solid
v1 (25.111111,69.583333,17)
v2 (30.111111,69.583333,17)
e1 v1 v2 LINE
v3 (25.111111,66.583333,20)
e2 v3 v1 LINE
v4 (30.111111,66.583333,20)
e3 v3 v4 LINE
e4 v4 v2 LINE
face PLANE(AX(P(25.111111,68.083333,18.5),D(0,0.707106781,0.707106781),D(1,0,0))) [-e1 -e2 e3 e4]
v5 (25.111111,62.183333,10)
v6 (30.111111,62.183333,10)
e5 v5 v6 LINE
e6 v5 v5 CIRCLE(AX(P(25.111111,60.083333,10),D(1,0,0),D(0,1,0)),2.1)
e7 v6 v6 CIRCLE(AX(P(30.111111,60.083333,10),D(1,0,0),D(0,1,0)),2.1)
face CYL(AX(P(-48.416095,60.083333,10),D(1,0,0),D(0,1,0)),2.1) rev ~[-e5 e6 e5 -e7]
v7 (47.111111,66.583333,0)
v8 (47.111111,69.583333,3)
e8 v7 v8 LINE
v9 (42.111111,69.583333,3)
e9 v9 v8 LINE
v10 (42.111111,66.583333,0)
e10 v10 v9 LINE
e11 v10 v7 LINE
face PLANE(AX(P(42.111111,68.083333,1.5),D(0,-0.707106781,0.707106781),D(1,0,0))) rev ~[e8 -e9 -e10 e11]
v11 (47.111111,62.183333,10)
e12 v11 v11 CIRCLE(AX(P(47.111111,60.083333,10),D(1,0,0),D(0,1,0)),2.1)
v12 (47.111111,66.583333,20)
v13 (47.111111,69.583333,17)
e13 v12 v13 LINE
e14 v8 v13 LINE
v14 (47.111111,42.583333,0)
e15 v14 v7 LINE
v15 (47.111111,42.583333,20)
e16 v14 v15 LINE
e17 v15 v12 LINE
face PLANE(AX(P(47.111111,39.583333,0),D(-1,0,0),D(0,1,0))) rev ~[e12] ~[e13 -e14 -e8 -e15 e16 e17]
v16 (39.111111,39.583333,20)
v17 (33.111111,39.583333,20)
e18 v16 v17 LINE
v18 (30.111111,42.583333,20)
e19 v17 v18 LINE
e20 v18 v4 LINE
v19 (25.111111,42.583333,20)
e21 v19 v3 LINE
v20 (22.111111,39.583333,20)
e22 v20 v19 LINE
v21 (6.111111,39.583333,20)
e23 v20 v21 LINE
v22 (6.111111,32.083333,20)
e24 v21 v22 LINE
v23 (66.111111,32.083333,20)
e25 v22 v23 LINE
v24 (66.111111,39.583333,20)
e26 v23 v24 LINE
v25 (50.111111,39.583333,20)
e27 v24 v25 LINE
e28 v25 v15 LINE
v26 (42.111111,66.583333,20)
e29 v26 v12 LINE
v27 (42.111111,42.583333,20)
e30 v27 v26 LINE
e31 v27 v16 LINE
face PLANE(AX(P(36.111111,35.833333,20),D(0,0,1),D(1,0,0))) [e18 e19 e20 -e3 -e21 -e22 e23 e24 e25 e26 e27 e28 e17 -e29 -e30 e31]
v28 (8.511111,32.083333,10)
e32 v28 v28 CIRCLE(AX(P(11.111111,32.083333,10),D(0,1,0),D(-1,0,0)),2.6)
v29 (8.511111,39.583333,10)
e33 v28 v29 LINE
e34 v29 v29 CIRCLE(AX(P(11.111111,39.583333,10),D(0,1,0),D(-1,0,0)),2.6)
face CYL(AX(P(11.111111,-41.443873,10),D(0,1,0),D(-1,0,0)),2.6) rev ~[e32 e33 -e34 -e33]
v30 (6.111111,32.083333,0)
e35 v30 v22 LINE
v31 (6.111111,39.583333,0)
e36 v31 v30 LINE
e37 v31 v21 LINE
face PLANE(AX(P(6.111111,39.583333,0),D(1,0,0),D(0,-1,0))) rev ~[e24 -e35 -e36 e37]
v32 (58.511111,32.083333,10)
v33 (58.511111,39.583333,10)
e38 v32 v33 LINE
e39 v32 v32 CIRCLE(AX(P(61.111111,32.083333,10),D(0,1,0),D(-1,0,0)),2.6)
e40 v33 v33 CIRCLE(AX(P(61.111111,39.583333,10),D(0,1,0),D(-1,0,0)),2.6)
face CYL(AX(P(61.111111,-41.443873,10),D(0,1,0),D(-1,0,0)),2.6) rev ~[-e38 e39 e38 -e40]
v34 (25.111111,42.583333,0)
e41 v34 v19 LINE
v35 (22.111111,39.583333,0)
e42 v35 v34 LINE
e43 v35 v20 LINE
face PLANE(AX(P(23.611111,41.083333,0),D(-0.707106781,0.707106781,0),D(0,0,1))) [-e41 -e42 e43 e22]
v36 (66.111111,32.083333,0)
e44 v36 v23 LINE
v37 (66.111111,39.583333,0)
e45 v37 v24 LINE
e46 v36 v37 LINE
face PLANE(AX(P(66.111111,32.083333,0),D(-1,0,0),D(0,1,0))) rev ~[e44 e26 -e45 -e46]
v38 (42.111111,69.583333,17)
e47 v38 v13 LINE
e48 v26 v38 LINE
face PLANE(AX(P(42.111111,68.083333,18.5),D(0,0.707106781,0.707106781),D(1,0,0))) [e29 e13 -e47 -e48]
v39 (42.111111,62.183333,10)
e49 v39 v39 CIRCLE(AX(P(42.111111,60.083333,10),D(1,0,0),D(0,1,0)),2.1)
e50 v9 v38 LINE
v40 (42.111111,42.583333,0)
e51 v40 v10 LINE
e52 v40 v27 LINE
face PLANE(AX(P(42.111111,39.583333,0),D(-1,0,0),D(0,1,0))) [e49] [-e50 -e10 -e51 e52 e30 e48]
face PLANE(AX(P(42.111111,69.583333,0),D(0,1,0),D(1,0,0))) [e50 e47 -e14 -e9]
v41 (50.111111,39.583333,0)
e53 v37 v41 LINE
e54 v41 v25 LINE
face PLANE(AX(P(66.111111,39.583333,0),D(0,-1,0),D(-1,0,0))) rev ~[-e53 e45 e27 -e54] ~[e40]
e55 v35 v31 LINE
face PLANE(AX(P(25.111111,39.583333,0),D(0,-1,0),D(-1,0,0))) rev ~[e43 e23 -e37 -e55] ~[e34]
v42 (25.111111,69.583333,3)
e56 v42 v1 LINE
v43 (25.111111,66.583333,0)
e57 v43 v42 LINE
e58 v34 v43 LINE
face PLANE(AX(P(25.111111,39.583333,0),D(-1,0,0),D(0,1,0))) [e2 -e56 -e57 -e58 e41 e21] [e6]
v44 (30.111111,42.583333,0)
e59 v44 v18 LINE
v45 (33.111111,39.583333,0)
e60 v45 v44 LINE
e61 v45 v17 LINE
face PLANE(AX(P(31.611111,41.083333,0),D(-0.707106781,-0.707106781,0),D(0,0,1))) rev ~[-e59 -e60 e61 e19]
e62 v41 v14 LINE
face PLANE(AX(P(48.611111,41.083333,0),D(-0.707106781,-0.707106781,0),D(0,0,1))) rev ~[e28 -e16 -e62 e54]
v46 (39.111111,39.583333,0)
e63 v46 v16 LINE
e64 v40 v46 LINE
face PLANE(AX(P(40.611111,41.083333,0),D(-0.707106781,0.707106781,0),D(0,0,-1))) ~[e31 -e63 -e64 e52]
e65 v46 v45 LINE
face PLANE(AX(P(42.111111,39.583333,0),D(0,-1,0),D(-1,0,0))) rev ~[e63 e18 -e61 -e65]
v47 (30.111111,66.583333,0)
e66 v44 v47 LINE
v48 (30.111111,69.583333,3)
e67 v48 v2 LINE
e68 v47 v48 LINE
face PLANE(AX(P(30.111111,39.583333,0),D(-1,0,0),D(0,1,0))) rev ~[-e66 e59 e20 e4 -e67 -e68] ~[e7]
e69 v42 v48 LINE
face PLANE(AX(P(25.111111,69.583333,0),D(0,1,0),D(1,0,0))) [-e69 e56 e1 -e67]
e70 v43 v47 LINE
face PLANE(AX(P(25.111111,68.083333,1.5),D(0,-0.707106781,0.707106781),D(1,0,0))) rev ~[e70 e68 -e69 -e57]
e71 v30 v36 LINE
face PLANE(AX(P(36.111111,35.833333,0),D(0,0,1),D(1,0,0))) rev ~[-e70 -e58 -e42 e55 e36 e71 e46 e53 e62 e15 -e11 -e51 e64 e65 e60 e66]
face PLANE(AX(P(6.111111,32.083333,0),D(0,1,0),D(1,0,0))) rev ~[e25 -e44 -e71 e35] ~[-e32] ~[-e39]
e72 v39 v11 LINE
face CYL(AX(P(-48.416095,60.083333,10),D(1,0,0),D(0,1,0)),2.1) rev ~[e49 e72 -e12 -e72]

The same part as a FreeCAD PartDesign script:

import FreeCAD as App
import Part
import Sketcher
from FreeCAD import Vector
Q = App.Units.Quantity


def edges_at(feature, points):
    """Names of the edges that pass closest to the given points."""
    edges = feature.Shape.Edges
    near = lambda p: min(range(len(edges)), key=lambda i: edges[i].distToShape(Part.Vertex(*p))[0])
    return sorted({f"Edge{near(p) + 1}" for p in points})

doc = App.newDocument("Part")
body = doc.addObject("PartDesign::Body", "Body")

# Sketch on XY plane
sketch1 = body.newObject("Sketcher::SketchObject", "Sketch")
sketch1.AttachmentSupport = (doc.getObject("XY_Plane"), [""])
sketch1.MapMode = "FlatFace"
sketch1.addGeometry(Part.LineSegment(Vector(6.111111, 39.583333, 0), Vector(6.111111, 32.083333, 0)), False)
sketch1.addGeometry(Part.LineSegment(Vector(6.111111, 32.083333, 0), Vector(66.111111, 32.083333, 0)), False)
sketch1.addGeometry(Part.LineSegment(Vector(66.111111, 32.083333, 0), Vector(66.111111, 39.583333, 0)), False)
sketch1.addGeometry(Part.LineSegment(Vector(66.111111, 39.583333, 0), Vector(47.111111, 39.583333, 0)), False)
sketch1.addGeometry(Part.LineSegment(Vector(47.111111, 39.583333, 0), Vector(47.111111, 69.583333, 0)), False)
sketch1.addGeometry(Part.LineSegment(Vector(47.111111, 69.583333, 0), Vector(42.111111, 69.583333, 0)), False)
sketch1.addGeometry(Part.LineSegment(Vector(42.111111, 69.583333, 0), Vector(42.111111, 39.583333, 0)), False)
sketch1.addGeometry(Part.LineSegment(Vector(42.111111, 39.583333, 0), Vector(30.111111, 39.583333, 0)), False)
sketch1.addGeometry(Part.LineSegment(Vector(30.111111, 39.583333, 0), Vector(30.111111, 69.583333, 0)), False)
sketch1.addGeometry(Part.LineSegment(Vector(30.111111, 69.583333, 0), Vector(25.111111, 69.583333, 0)), False)
sketch1.addGeometry(Part.LineSegment(Vector(25.111111, 69.583333, 0), Vector(25.111111, 39.583333, 0)), False)
sketch1.addGeometry(Part.LineSegment(Vector(25.111111, 39.583333, 0), Vector(6.111111, 39.583333, 0)), False)
sketch1.addConstraint(Sketcher.Constraint("Coincident", 0, 2, 1, 1))
sketch1.addConstraint(Sketcher.Constraint("Coincident", 1, 2, 2, 1))
sketch1.addConstraint(Sketcher.Constraint("Coincident", 2, 2, 3, 1))
sketch1.addConstraint(Sketcher.Constraint("Coincident", 3, 2, 4, 1))
sketch1.addConstraint(Sketcher.Constraint("Coincident", 4, 2, 5, 1))
sketch1.addConstraint(Sketcher.Constraint("Coincident", 5, 2, 6, 1))
sketch1.addConstraint(Sketcher.Constraint("Coincident", 6, 2, 7, 1))
sketch1.addConstraint(Sketcher.Constraint("Coincident", 7, 2, 8, 1))
sketch1.addConstraint(Sketcher.Constraint("Coincident", 8, 2, 9, 1))
sketch1.addConstraint(Sketcher.Constraint("Coincident", 9, 2, 10, 1))
sketch1.addConstraint(Sketcher.Constraint("Coincident", 10, 2, 11, 1))
sketch1.addConstraint(Sketcher.Constraint("Coincident", 11, 2, 0, 1))
sketch1.addConstraint(Sketcher.Constraint("Vertical", 0))
sketch1.addConstraint(Sketcher.Constraint("Horizontal", 1))
sketch1.addConstraint(Sketcher.Constraint("Vertical", 2))
sketch1.addConstraint(Sketcher.Constraint("Horizontal", 3))
sketch1.addConstraint(Sketcher.Constraint("Vertical", 4))
sketch1.addConstraint(Sketcher.Constraint("Horizontal", 5))
sketch1.addConstraint(Sketcher.Constraint("Vertical", 6))
sketch1.addConstraint(Sketcher.Constraint("Horizontal", 7))
sketch1.addConstraint(Sketcher.Constraint("Vertical", 8))
sketch1.addConstraint(Sketcher.Constraint("Horizontal", 9))
sketch1.addConstraint(Sketcher.Constraint("Vertical", 10))
sketch1.addConstraint(Sketcher.Constraint("Horizontal", 11))
sketch1.addConstraint(Sketcher.Constraint("Horizontal", 3, 2, 6, 2))
sketch1.addConstraint(Sketcher.Constraint("Horizontal", 5, 2, 8, 2))
sketch1.addConstraint(Sketcher.Constraint("Horizontal", 7, 2, 10, 2))
sketch1.addConstraint(Sketcher.Constraint("Equal", 5, 9))
sketch1.addConstraint(Sketcher.Constraint("Equal", 3, 11))
sketch1.addConstraint(Sketcher.Constraint("DistanceX", 1, 1, 1, 2, Q("60 mm")))
sketch1.addConstraint(Sketcher.Constraint("DistanceX", 3, 2, 3, 1, Q("19 mm")))
sketch1.addConstraint(Sketcher.Constraint("DistanceX", 5, 2, 5, 1, Q("5 mm")))
sketch1.addConstraint(Sketcher.Constraint("DistanceY", 4, 1, 4, 2, Q("30 mm")))
sketch1.addConstraint(Sketcher.Constraint("DistanceY", 0, 2, 0, 1, Q("7.5 mm")))
sketch1.addConstraint(Sketcher.Constraint("DistanceX", -1, 1, 0, 2, Q("6.111111 mm")))
sketch1.addConstraint(Sketcher.Constraint("DistanceY", -1, 1, 0, 2, Q("32.083333 mm")))
pad1 = body.newObject("PartDesign::Pad", "Pad")
pad1.Profile = sketch1
pad1.Length = 20

# Sketch on XZ plane
sketch2 = body.newObject("Sketcher::SketchObject", "Sketch001")
sketch2.AttachmentSupport = (doc.getObject("XZ_Plane"), [""])
sketch2.MapMode = "FlatFace"
sketch2.AttachmentOffset = App.Placement(Vector(0, 0, -32.083333), App.Rotation())
sketch2.addGeometry(Part.Circle(Vector(11.111111, 10, 0), Vector(0, 0, 1), 2.6), False)
sketch2.addGeometry(Part.Circle(Vector(61.111111, 10, 0), Vector(0, 0, 1), 2.6), False)
sketch2.addConstraint(Sketcher.Constraint("Equal", 0, 1))
sketch2.addConstraint(Sketcher.Constraint("Horizontal", 0, 3, 1, 3))
sketch2.addConstraint(Sketcher.Constraint("Diameter", 0, Q("5.2 mm")))
sketch2.addConstraint(Sketcher.Constraint("DistanceY", -1, 1, 0, 3, Q("10 mm")))
sketch2.addConstraint(Sketcher.Constraint("DistanceX", 0, 3, 1, 3, Q("50 mm")))
sketch2.addConstraint(Sketcher.Constraint("DistanceX", -1, 1, 0, 3, Q("11.111111 mm")))
doc.recompute()
hole = body.newObject("PartDesign::Hole", "Hole")
hole.Profile = sketch2
hole.ThreadType = "None"
hole.Diameter = 5.2
hole.DepthType = "ThroughAll"

# Sketch on YZ plane
sketch3 = body.newObject("Sketcher::SketchObject", "Sketch002")
sketch3.AttachmentSupport = (doc.getObject("YZ_Plane"), [""])
sketch3.MapMode = "FlatFace"
sketch3.AttachmentOffset = App.Placement(Vector(0, 0, 25.111111), App.Rotation())
sketch3.addGeometry(Part.Circle(Vector(60.083333, 10, 0), Vector(0, 0, 1), 2.1), False)
sketch3.addConstraint(Sketcher.Constraint("Diameter", 0, Q("4.2 mm")))
sketch3.addConstraint(Sketcher.Constraint("DistanceY", -1, 1, 0, 3, Q("10 mm")))
sketch3.addConstraint(Sketcher.Constraint("DistanceX", -1, 1, 0, 3, Q("60.083333 mm")))
doc.recompute()
hole2 = body.newObject("PartDesign::Hole", "Hole001")
hole2.Profile = sketch3
hole2.ThreadType = "None"
hole2.Diameter = 4.2
hole2.DepthType = "ThroughAll"
hole2.Reversed = True
doc.recompute()

chamfer = body.newObject("PartDesign::Chamfer", "Chamfer")
chamfer.Base = (hole2, edges_at(hole2, [
    (27.611, 69.583, 20),
    (44.611, 69.583, 20),
    (44.611, 69.583, 0),
    (27.611, 69.583, 0),
    (25.111, 39.583, 10),
    (47.111, 39.583, 10),
    (42.111, 39.583, 10),
    (30.111, 39.583, 10),
]))
chamfer.Size = 3

doc.recompute()
